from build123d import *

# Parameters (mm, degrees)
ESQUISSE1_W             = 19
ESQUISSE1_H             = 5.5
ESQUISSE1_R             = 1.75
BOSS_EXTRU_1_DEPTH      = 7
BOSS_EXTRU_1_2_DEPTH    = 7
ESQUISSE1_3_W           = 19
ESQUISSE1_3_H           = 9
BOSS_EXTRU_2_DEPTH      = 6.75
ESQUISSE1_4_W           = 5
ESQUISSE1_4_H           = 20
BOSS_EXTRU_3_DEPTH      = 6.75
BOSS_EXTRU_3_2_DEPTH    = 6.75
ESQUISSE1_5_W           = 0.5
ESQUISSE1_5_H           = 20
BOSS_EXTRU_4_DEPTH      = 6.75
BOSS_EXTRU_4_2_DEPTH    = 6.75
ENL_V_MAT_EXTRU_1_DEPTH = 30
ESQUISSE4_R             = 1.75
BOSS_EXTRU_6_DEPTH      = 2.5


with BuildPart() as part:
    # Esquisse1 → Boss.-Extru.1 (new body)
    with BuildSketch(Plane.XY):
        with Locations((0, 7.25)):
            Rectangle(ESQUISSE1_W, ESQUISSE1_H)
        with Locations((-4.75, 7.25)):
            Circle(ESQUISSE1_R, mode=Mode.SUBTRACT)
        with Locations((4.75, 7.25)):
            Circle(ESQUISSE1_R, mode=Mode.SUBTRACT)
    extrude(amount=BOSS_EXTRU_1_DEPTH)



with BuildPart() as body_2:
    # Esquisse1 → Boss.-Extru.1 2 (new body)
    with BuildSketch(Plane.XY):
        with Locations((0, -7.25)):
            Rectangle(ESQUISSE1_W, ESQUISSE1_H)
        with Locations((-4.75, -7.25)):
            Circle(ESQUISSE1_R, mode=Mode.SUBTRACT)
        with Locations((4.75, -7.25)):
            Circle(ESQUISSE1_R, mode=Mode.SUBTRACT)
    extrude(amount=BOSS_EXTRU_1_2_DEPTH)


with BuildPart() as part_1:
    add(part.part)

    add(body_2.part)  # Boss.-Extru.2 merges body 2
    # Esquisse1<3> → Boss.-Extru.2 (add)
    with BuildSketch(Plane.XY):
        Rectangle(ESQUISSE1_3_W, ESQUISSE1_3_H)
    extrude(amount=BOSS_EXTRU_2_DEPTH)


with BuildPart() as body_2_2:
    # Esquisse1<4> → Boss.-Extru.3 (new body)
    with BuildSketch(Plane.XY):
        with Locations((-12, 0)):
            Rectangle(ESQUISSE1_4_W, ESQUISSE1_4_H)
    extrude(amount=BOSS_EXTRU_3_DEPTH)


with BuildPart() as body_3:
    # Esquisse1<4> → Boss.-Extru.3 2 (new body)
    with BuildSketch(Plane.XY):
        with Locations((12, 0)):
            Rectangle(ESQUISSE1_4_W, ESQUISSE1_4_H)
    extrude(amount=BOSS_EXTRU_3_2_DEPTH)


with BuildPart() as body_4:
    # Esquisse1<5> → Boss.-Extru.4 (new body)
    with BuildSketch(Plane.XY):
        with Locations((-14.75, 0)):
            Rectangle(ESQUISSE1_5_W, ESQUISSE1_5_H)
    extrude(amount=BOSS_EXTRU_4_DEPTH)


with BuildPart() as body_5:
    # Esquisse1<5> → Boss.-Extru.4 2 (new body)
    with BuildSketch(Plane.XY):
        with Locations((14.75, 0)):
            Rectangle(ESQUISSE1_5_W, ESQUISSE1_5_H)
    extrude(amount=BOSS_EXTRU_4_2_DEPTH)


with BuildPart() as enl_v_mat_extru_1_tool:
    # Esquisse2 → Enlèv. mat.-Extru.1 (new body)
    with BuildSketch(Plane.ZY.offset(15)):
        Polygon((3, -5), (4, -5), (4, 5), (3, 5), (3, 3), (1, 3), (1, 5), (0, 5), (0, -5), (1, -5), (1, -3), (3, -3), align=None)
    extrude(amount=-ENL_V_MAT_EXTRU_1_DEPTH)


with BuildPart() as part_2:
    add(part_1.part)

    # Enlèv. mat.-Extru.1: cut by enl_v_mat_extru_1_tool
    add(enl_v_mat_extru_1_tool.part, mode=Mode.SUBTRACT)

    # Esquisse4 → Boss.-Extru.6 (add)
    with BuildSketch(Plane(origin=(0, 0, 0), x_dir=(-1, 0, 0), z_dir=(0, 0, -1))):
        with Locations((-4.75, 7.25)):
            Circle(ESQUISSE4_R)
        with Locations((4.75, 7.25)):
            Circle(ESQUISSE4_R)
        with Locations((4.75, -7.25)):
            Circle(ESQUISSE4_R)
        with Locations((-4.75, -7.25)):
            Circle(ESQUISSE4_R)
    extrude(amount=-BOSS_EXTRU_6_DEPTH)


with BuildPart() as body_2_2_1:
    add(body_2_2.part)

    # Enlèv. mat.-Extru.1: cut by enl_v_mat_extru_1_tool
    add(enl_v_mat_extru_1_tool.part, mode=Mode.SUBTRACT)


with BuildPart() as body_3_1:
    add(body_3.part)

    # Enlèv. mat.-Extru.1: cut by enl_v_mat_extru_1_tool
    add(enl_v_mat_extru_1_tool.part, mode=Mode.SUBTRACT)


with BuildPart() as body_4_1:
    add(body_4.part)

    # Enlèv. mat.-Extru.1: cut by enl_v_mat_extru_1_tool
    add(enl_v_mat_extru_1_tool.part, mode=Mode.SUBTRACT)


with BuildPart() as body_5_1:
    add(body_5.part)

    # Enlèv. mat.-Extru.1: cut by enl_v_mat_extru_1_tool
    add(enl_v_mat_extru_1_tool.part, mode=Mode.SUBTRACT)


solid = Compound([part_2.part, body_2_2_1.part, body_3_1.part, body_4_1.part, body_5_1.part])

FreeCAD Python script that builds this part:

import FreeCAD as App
import Part
import Sketcher
Q = App.Units.Quantity

doc = App.newDocument("Part")
body = doc.addObject("PartDesign::Body", "Body")

# Sketch on XY plane
sketch1 = body.newObject("Sketcher::SketchObject", "Sketch")
sketch1.AttachmentSupport = (doc.getObject("XY_Plane"), [""])
sketch1.MapMode = "FlatFace"
sketch1.addGeometry(Part.LineSegment(App.Vector(-9.5, 10, 0), App.Vector(-9.5, 4.5, 0)), False)
sketch1.addGeometry(Part.LineSegment(App.Vector(-9.5, 4.5, 0), App.Vector(9.5, 4.5, 0)), False)
sketch1.addGeometry(Part.LineSegment(App.Vector(9.5, 4.5, 0), App.Vector(9.5, 10, 0)), False)
sketch1.addGeometry(Part.LineSegment(App.Vector(9.5, 10, 0), App.Vector(-9.5, 10, 0)), False)
sketch1.addGeometry(Part.Circle(App.Vector(-4.8, 7.2, 0), App.Vector(0, 0, 1), 1.8), False)
sketch1.addGeometry(Part.Circle(App.Vector(4.8, 7.2, 0), App.Vector(0, 0, 1), 1.8), False)
sketch1.addConstraint(Sketcher.Constraint("Coincident", 0, 2, 1, 1))
sketch1.addConstraint(Sketcher.Constraint("Coincident", 1, 2, 2, 1))
sketch1.addConstraint(Sketcher.Constraint("Coincident", 2, 2, 3, 1))
sketch1.addConstraint(Sketcher.Constraint("Coincident", 3, 2, 0, 1))
sketch1.addConstraint(Sketcher.Constraint("Vertical", 0))
sketch1.addConstraint(Sketcher.Constraint("Horizontal", 1))
sketch1.addConstraint(Sketcher.Constraint("Vertical", 2))
sketch1.addConstraint(Sketcher.Constraint("Horizontal", 3))
sketch1.addConstraint(Sketcher.Constraint("Equal", 4, 5))
sketch1.addConstraint(Sketcher.Constraint("Symmetric", 4, 3, 5, 3, -2))
sketch1.addConstraint(Sketcher.Constraint("Diameter", 4, Q("3.5 mm")))
sketch1.addConstraint(Sketcher.Constraint("DistanceX", 1, 1, 1, 2, Q("19 mm")))
sketch1.addConstraint(Sketcher.Constraint("DistanceY", 0, 2, 0, 1, Q("5.5 mm")))
sketch1.addConstraint(Sketcher.Constraint("DistanceY", -1, 1, 2, 2, Q("10 mm")))
sketch1.addConstraint(Sketcher.Constraint("DistanceX", 0, 2, -1, 1, Q("9.5 mm")))
sketch1.addConstraint(Sketcher.Constraint("DistanceX", 4, 3, 5, 3, Q("9.5 mm")))
sketch1.addConstraint(Sketcher.Constraint("DistanceY", -1, 1, 4, 3, Q("7.25 mm")))
pad1 = body.newObject("PartDesign::Pad", "Pad")
pad1.Profile = sketch1
pad1.Length = 7
body2 = doc.addObject("PartDesign::Body", "Body001")

# Sketch on XY plane
sketch2 = body2.newObject("Sketcher::SketchObject", "Sketch001")
sketch2.AttachmentSupport = (doc.getObject("XY_Plane001"), [""])
sketch2.MapMode = "FlatFace"
sketch2.addGeometry(Part.LineSegment(App.Vector(-9.5, -4.5, 0), App.Vector(-9.5, -10, 0)), False)
sketch2.addGeometry(Part.LineSegment(App.Vector(-9.5, -10, 0), App.Vector(9.5, -10, 0)), False)
sketch2.addGeometry(Part.LineSegment(App.Vector(9.5, -10, 0), App.Vector(9.5, -4.5, 0)), False)
sketch2.addGeometry(Part.LineSegment(App.Vector(9.5, -4.5, 0), App.Vector(-9.5, -4.5, 0)), False)
sketch2.addGeometry(Part.Circle(App.Vector(-4.8, -7.2, 0), App.Vector(0, 0, 1), 1.8), False)
sketch2.addGeometry(Part.Circle(App.Vector(4.8, -7.2, 0), App.Vector(0, 0, 1), 1.8), False)
sketch2.addConstraint(Sketcher.Constraint("Coincident", 0, 2, 1, 1))
sketch2.addConstraint(Sketcher.Constraint("Coincident", 1, 2, 2, 1))
sketch2.addConstraint(Sketcher.Constraint("Coincident", 2, 2, 3, 1))
sketch2.addConstraint(Sketcher.Constraint("Coincident", 3, 2, 0, 1))
sketch2.addConstraint(Sketcher.Constraint("Vertical", 0))
sketch2.addConstraint(Sketcher.Constraint("Horizontal", 1))
sketch2.addConstraint(Sketcher.Constraint("Vertical", 2))
sketch2.addConstraint(Sketcher.Constraint("Horizontal", 3))
sketch2.addConstraint(Sketcher.Constraint("Equal", 4, 5))
sketch2.addConstraint(Sketcher.Constraint("Symmetric", 4, 3, 5, 3, -2))
sketch2.addConstraint(Sketcher.Constraint("Diameter", 4, Q("3.5 mm")))
sketch2.addConstraint(Sketcher.Constraint("DistanceX", 1, 1, 1, 2, Q("19 mm")))
sketch2.addConstraint(Sketcher.Constraint("DistanceY", 0, 2, 0, 1, Q("5.5 mm")))
sketch2.addConstraint(Sketcher.Constraint("DistanceY", 0, 2, -1, 1, Q("10 mm")))
sketch2.addConstraint(Sketcher.Constraint("DistanceX", 0, 2, -1, 1, Q("9.5 mm")))
sketch2.addConstraint(Sketcher.Constraint("DistanceX", 4, 3, 5, 3, Q("9.5 mm")))
sketch2.addConstraint(Sketcher.Constraint("DistanceY", 4, 3, -1, 1, Q("7.25 mm")))
pad2 = body2.newObject("PartDesign::Pad", "Pad001")
pad2.Profile = sketch2
pad2.Length = 7
body.AllowCompound = True
doc.recompute()

boolean = body.newObject("PartDesign::Boolean", "Boolean")
boolean.Type = "Fuse"
boolean.addObjects([body2])

# Sketch on XY plane
sketch3 = body.newObject("Sketcher::SketchObject", "Sketch002")
sketch3.AttachmentSupport = (doc.getObject("XY_Plane"), [""])
sketch3.MapMode = "FlatFace"
sketch3.addGeometry(Part.LineSegment(App.Vector(-10, 4, 0), App.Vector(-10, -4, 0)), False)
sketch3.addGeometry(Part.LineSegment(App.Vector(-10, -4, 0), App.Vector(10, -4, 0)), False)
sketch3.addGeometry(Part.LineSegment(App.Vector(10, -4, 0), App.Vector(10, 4, 0)), False)
sketch3.addGeometry(Part.LineSegment(App.Vector(10, 4, 0), App.Vector(-10, 4, 0)), False)
sketch3.addConstraint(Sketcher.Constraint("Coincident", 0, 2, 1, 1))
sketch3.addConstraint(Sketcher.Constraint("Coincident", 1, 2, 2, 1))
sketch3.addConstraint(Sketcher.Constraint("Coincident", 2, 2, 3, 1))
sketch3.addConstraint(Sketcher.Constraint("Coincident", 3, 2, 0, 1))
sketch3.addConstraint(Sketcher.Constraint("Vertical", 0))
sketch3.addConstraint(Sketcher.Constraint("Horizontal", 1))
sketch3.addConstraint(Sketcher.Constraint("Vertical", 2))
sketch3.addConstraint(Sketcher.Constraint("Horizontal", 3))
sketch3.addConstraint(Sketcher.Constraint("Symmetric", 0, 2, 2, 2, -1, 1))
sketch3.addConstraint(Sketcher.Constraint("DistanceX", 1, 1, 1, 2, Q("19 mm")))
sketch3.addConstraint(Sketcher.Constraint("DistanceY", 0, 2, 0, 1, Q("9 mm")))
pad3 = body.newObject("PartDesign::Pad", "Pad002")
pad3.Profile = sketch3
pad3.Length = 6.75
body3 = doc.addObject("PartDesign::Body", "Body002")

# Sketch on XY plane
sketch4 = body3.newObject("Sketcher::SketchObject", "Sketch003")
sketch4.AttachmentSupport = (doc.getObject("XY_Plane002"), [""])
sketch4.MapMode = "FlatFace"
sketch4.addGeometry(Part.LineSegment(App.Vector(-14, 10, 0), App.Vector(-14, -10, 0)), False)
sketch4.addGeometry(Part.LineSegment(App.Vector(-14, -10, 0), App.Vector(-10, -10, 0)), False)
sketch4.addGeometry(Part.LineSegment(App.Vector(-10, -10, 0), App.Vector(-10, 10, 0)), False)
sketch4.addGeometry(Part.LineSegment(App.Vector(-10, 10, 0), App.Vector(-14, 10, 0)), False)
sketch4.addConstraint(Sketcher.Constraint("Coincident", 0, 2, 1, 1))
sketch4.addConstraint(Sketcher.Constraint("Coincident", 1, 2, 2, 1))
sketch4.addConstraint(Sketcher.Constraint("Coincident", 2, 2, 3, 1))
sketch4.addConstraint(Sketcher.Constraint("Coincident", 3, 2, 0, 1))
sketch4.addConstraint(Sketcher.Constraint("Vertical", 0))
sketch4.addConstraint(Sketcher.Constraint("Horizontal", 1))
sketch4.addConstraint(Sketcher.Constraint("Vertical", 2))
sketch4.addConstraint(Sketcher.Constraint("Horizontal", 3))
sketch4.addConstraint(Sketcher.Constraint("DistanceX", 1, 1, 1, 2, Q("5 mm")))
sketch4.addConstraint(Sketcher.Constraint("DistanceY", 0, 2, 0, 1, Q("20 mm")))
sketch4.addConstraint(Sketcher.Constraint("DistanceY", 0, 2, -1, 1, Q("10 mm")))
sketch4.addConstraint(Sketcher.Constraint("DistanceX", 0, 2, -1, 1, Q("14.5 mm")))
pad4 = body3.newObject("PartDesign::Pad", "Pad003")
pad4.Profile = sketch4
pad4.Length = 6.75
body4 = doc.addObject("PartDesign::Body", "Body003")

# Sketch on XY plane
sketch5 = body4.newObject("Sketcher::SketchObject", "Sketch004")
sketch5.AttachmentSupport = (doc.getObject("XY_Plane003"), [""])
sketch5.MapMode = "FlatFace"
sketch5.addGeometry(Part.LineSegment(App.Vector(10, 10, 0), App.Vector(10, -10, 0)), False)
sketch5.addGeometry(Part.LineSegment(App.Vector(10, -10, 0), App.Vector(14, -10, 0)), False)
sketch5.addGeometry(Part.LineSegment(App.Vector(14, -10, 0), App.Vector(14, 10, 0)), False)
sketch5.addGeometry(Part.LineSegment(App.Vector(14, 10, 0), App.Vector(10, 10, 0)), False)
sketch5.addConstraint(Sketcher.Constraint("Coincident", 0, 2, 1, 1))
sketch5.addConstraint(Sketcher.Constraint("Coincident", 1, 2, 2, 1))
sketch5.addConstraint(Sketcher.Constraint("Coincident", 2, 2, 3, 1))
sketch5.addConstraint(Sketcher.Constraint("Coincident", 3, 2, 0, 1))
sketch5.addConstraint(Sketcher.Constraint("Vertical", 0))
sketch5.addConstraint(Sketcher.Constraint("Horizontal", 1))
sketch5.addConstraint(Sketcher.Constraint("Vertical", 2))
sketch5.addConstraint(Sketcher.Constraint("Horizontal", 3))
sketch5.addConstraint(Sketcher.Constraint("DistanceX", 1, 1, 1, 2, Q("5 mm")))
sketch5.addConstraint(Sketcher.Constraint("DistanceY", 0, 2, 0, 1, Q("20 mm")))
sketch5.addConstraint(Sketcher.Constraint("DistanceY", 0, 2, -1, 1, Q("10 mm")))
sketch5.addConstraint(Sketcher.Constraint("DistanceX", -1, 1, 0, 2, Q("9.5 mm")))
pad5 = body4.newObject("PartDesign::Pad", "Pad004")
pad5.Profile = sketch5
pad5.Length = 6.75
body5 = doc.addObject("PartDesign::Body", "Body004")

# Sketch on XY plane
sketch6 = body5.newObject("Sketcher::SketchObject", "Sketch005")
sketch6.AttachmentSupport = (doc.getObject("XY_Plane004"), [""])
sketch6.MapMode = "FlatFace"
sketch6.addGeometry(Part.LineSegment(App.Vector(-15, 10, 0), App.Vector(-15, -10, 0)), False)
sketch6.addGeometry(Part.LineSegment(App.Vector(-15, -10, 0), App.Vector(-14.5, -10, 0)), False)
sketch6.addGeometry(Part.LineSegment(App.Vector(-14.5, -10, 0), App.Vector(-14.5, 10, 0)), False)
sketch6.addGeometry(Part.LineSegment(App.Vector(-14.5, 10, 0), App.Vector(-15, 10, 0)), False)
sketch6.addConstraint(Sketcher.Constraint("Coincident", 0, 2, 1, 1))
sketch6.addConstraint(Sketcher.Constraint("Coincident", 1, 2, 2, 1))
sketch6.addConstraint(Sketcher.Constraint("Coincident", 2, 2, 3, 1))
sketch6.addConstraint(Sketcher.Constraint("Coincident", 3, 2, 0, 1))
sketch6.addConstraint(Sketcher.Constraint("Vertical", 0))
sketch6.addConstraint(Sketcher.Constraint("Horizontal", 1))
sketch6.addConstraint(Sketcher.Constraint("Vertical", 2))
sketch6.addConstraint(Sketcher.Constraint("Horizontal", 3))
sketch6.addConstraint(Sketcher.Constraint("DistanceY", 0, 2, 0, 1, Q("20 mm")))
sketch6.addConstraint(Sketcher.Constraint("DistanceX", 1, 1, 1, 2, Q("0.5 mm")))
sketch6.addConstraint(Sketcher.Constraint("DistanceX", 0, 2, -1, 1, Q("15 mm")))
sketch6.addConstraint(Sketcher.Constraint("DistanceY", 0, 2, -1, 1, Q("10 mm")))
pad6 = body5.newObject("PartDesign::Pad", "Pad005")
pad6.Profile = sketch6
pad6.Length = 6.75
body6 = doc.addObject("PartDesign::Body", "Body005")

# Sketch on XY plane
sketch7 = body6.newObject("Sketcher::SketchObject", "Sketch006")
sketch7.AttachmentSupport = (doc.getObject("XY_Plane005"), [""])
sketch7.MapMode = "FlatFace"
sketch7.addGeometry(Part.LineSegment(App.Vector(14.5, 10, 0), App.Vector(14.5, -10, 0)), False)
sketch7.addGeometry(Part.LineSegment(App.Vector(14.5, -10, 0), App.Vector(15, -10, 0)), False)
sketch7.addGeometry(Part.LineSegment(App.Vector(15, -10, 0), App.Vector(15, 10, 0)), False)
sketch7.addGeometry(Part.LineSegment(App.Vector(15, 10, 0), App.Vector(14.5, 10, 0)), False)
sketch7.addConstraint(Sketcher.Constraint("Coincident", 0, 2, 1, 1))
sketch7.addConstraint(Sketcher.Constraint("Coincident", 1, 2, 2, 1))
sketch7.addConstraint(Sketcher.Constraint("Coincident", 2, 2, 3, 1))
sketch7.addConstraint(Sketcher.Constraint("Coincident", 3, 2, 0, 1))
sketch7.addConstraint(Sketcher.Constraint("Vertical", 0))
sketch7.addConstraint(Sketcher.Constraint("Horizontal", 1))
sketch7.addConstraint(Sketcher.Constraint("Vertical", 2))
sketch7.addConstraint(Sketcher.Constraint("Horizontal", 3))
sketch7.addConstraint(Sketcher.Constraint("DistanceY", 0, 2, 0, 1, Q("20 mm")))
sketch7.addConstraint(Sketcher.Constraint("DistanceX", 1, 1, 1, 2, Q("0.5 mm")))
sketch7.addConstraint(Sketcher.Constraint("DistanceY", 0, 2, -1, 1, Q("10 mm")))
sketch7.addConstraint(Sketcher.Constraint("DistanceX", -1, 1, 1, 2, Q("15 mm")))
pad7 = body6.newObject("PartDesign::Pad", "Pad006")
pad7.Profile = sketch7
pad7.Length = 6.75
body7 = doc.addObject("PartDesign::Body", "Body006")

# Sketch on YZ plane
sketch8 = body7.newObject("Sketcher::SketchObject", "Sketch007")
sketch8.AttachmentSupport = (doc.getObject("YZ_Plane006"), [""])
sketch8.MapMode = "FlatFace"
sketch8.AttachmentOffset = App.Placement(App.Vector(0, 0, -15), App.Rotation())
sketch8.addGeometry(Part.LineSegment(App.Vector(-5, 3, 0), App.Vector(-5, 4, 0)), False)
sketch8.addGeometry(Part.LineSegment(App.Vector(-5, 4, 0), App.Vector(5, 4, 0)), False)
sketch8.addGeometry(Part.LineSegment(App.Vector(5, 4, 0), App.Vector(5, 3, 0)), False)
sketch8.addGeometry(Part.LineSegment(App.Vector(5, 3, 0), App.Vector(3, 3, 0)), False)
sketch8.addGeometry(Part.LineSegment(App.Vector(3, 3, 0), App.Vector(3, 1, 0)), False)
sketch8.addGeometry(Part.LineSegment(App.Vector(3, 1, 0), App.Vector(5, 1, 0)), False)
sketch8.addGeometry(Part.LineSegment(App.Vector(5, 1, 0), App.Vector(5, 0, 0)), False)
sketch8.addGeometry(Part.LineSegment(App.Vector(5, 0, 0), App.Vector(-5, 0, 0)), False)
sketch8.addGeometry(Part.LineSegment(App.Vector(-5, 0, 0), App.Vector(-5, 1, 0)), False)
sketch8.addGeometry(Part.LineSegment(App.Vector(-5, 1, 0), App.Vector(-3, 1, 0)), False)
sketch8.addGeometry(Part.LineSegment(App.Vector(-3, 1, 0), App.Vector(-3, 3, 0)), False)
sketch8.addGeometry(Part.LineSegment(App.Vector(-3, 3, 0), App.Vector(-5, 3, 0)), False)
sketch8.addConstraint(Sketcher.Constraint("Coincident", 0, 2, 1, 1))
sketch8.addConstraint(Sketcher.Constraint("Coincident", 1, 2, 2, 1))
sketch8.addConstraint(Sketcher.Constraint("Coincident", 2, 2, 3, 1))
sketch8.addConstraint(Sketcher.Constraint("Coincident", 3, 2, 4, 1))
sketch8.addConstraint(Sketcher.Constraint("Coincident", 4, 2, 5, 1))
sketch8.addConstraint(Sketcher.Constraint("Coincident", 5, 2, 6, 1))
sketch8.addConstraint(Sketcher.Constraint("Coincident", 6, 2, 7, 1))
sketch8.addConstraint(Sketcher.Constraint("Coincident", 7, 2, 8, 1))
sketch8.addConstraint(Sketcher.Constraint("Coincident", 8, 2, 9, 1))
sketch8.addConstraint(Sketcher.Constraint("Coincident", 9, 2, 10, 1))
sketch8.addConstraint(Sketcher.Constraint("Coincident", 10, 2, 11, 1))
sketch8.addConstraint(Sketcher.Constraint("Coincident", 11, 2, 0, 1))
sketch8.addConstraint(Sketcher.Constraint("Vertical", 0))
sketch8.addConstraint(Sketcher.Constraint("Horizontal", 1))
sketch8.addConstraint(Sketcher.Constraint("Vertical", 2))
sketch8.addConstraint(Sketcher.Constraint("Horizontal", 3))
sketch8.addConstraint(Sketcher.Constraint("Vertical", 4))
sketch8.addConstraint(Sketcher.Constraint("Horizontal", 5))
sketch8.addConstraint(Sketcher.Constraint("Vertical", 6))
sketch8.addConstraint(Sketcher.Constraint("Horizontal", 7))
sketch8.addConstraint(Sketcher.Constraint("Vertical", 8))
sketch8.addConstraint(Sketcher.Constraint("Horizontal", 9))
sketch8.addConstraint(Sketcher.Constraint("Vertical", 10))
sketch8.addConstraint(Sketcher.Constraint("Horizontal", 11))
sketch8.addConstraint(Sketcher.Constraint("Symmetric", 6, 2, 7, 2, -1, 1))
sketch8.addConstraint(Sketcher.Constraint("Symmetric", 4, 2, 9, 2, -2))
sketch8.addConstraint(Sketcher.Constraint("Symmetric", 2, 2, 11, 2, -2))
sketch8.addConstraint(Sketcher.Constraint("Vertical", 2, 2, 5, 2))
sketch8.addConstraint(Sketcher.Constraint("Equal", 11, 4))
sketch8.addConstraint(Sketcher.Constraint("Equal", 2, 6))
sketch8.addConstraint(Sketcher.Constraint("DistanceX", 1, 1, 1, 2, Q("10 mm")))
sketch8.addConstraint(Sketcher.Constraint("DistanceX", 3, 2, 3, 1, Q("2 mm")))
sketch8.addConstraint(Sketcher.Constraint("DistanceY", 0, 1, 0, 2, Q("1 mm")))
pad8 = body7.newObject("PartDesign::Pad", "Pad007")
pad8.Profile = sketch8
pad8.Length = 30
doc.recompute()

body8 = doc.addObject("PartDesign::Body", "Body007")
body8.BaseFeature = body7
boolean2 = body.newObject("PartDesign::Boolean", "Boolean001")
boolean2.Type = "Cut"
boolean2.addObjects([body8])
doc.recompute()

# Sketch on XY plane
sketch9 = body.newObject("Sketcher::SketchObject", "Sketch008")
sketch9.AttachmentSupport = (doc.getObject("XY_Plane"), [""])
sketch9.MapMode = "FlatFace"
sketch9.addGeometry(Part.Circle(App.Vector(4.8, 7.2, 0), App.Vector(0, 0, 1), 1.8), False)
sketch9.addGeometry(Part.Circle(App.Vector(-4.8, 7.2, 0), App.Vector(0, 0, 1), 1.8), False)
sketch9.addGeometry(Part.Circle(App.Vector(-4.8, -7.2, 0), App.Vector(0, 0, 1), 1.8), False)
sketch9.addGeometry(Part.Circle(App.Vector(4.8, -7.2, 0), App.Vector(0, 0, 1), 1.8), False)
sketch9.addConstraint(Sketcher.Constraint("Equal", 0, 1))
sketch9.addConstraint(Sketcher.Constraint("Equal", 1, 2))
sketch9.addConstraint(Sketcher.Constraint("Equal", 2, 3))
sketch9.addConstraint(Sketcher.Constraint("Symmetric", 0, 3, 2, 3, -1, 1))
sketch9.addConstraint(Sketcher.Constraint("Symmetric", 1, 3, 3, 3, -1, 1))
sketch9.addConstraint(Sketcher.Constraint("Symmetric", 0, 3, 1, 3, -2))
sketch9.addConstraint(Sketcher.Constraint("Diameter", 0, Q("3.5 mm")))
sketch9.addConstraint(Sketcher.Constraint("DistanceX", 1, 3, 0, 3, Q("9.5 mm")))
sketch9.addConstraint(Sketcher.Constraint("DistanceY", 2, 3, 1, 3, Q("14.5 mm")))
pad9 = body.newObject("PartDesign::Pad", "Pad008")
pad9.Profile = sketch9
pad9.Length = 2.5
doc.recompute()

body9 = doc.addObject("PartDesign::Body", "Body008")
body9.BaseFeature = body7
boolean3 = body3.newObject("PartDesign::Boolean", "Boolean002")
boolean3.Type = "Cut"
boolean3.addObjects([body9])
doc.recompute()

body10 = doc.addObject("PartDesign::Body", "Body009")
body10.BaseFeature = body7
boolean4 = body4.newObject("PartDesign::Boolean", "Boolean003")
boolean4.Type = "Cut"
boolean4.addObjects([body10])
doc.recompute()

body11 = doc.addObject("PartDesign::Body", "Body010")
body11.BaseFeature = body7
boolean5 = body5.newObject("PartDesign::Boolean", "Boolean004")
boolean5.Type = "Cut"
boolean5.addObjects([body11])
doc.recompute()

boolean6 = body6.newObject("PartDesign::Boolean", "Boolean005")
boolean6.Type = "Cut"
boolean6.addObjects([body7])

doc.recompute()
